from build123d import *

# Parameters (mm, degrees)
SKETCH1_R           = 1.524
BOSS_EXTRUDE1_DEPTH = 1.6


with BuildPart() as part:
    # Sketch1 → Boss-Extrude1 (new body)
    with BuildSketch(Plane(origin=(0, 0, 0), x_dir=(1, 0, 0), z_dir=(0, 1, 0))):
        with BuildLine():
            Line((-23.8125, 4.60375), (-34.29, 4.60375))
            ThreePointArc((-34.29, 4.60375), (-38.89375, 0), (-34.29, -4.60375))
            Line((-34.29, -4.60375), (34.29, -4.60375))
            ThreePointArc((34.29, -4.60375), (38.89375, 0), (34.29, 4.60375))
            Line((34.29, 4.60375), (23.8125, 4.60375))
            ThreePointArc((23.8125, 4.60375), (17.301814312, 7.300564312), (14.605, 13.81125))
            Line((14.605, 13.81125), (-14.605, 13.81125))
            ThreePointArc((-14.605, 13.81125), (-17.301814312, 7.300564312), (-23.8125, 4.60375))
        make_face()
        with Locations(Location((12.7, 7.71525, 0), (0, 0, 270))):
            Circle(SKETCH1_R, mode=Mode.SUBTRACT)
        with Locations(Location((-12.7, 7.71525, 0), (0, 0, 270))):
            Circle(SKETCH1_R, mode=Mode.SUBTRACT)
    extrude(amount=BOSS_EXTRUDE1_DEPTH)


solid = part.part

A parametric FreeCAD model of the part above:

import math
import FreeCAD as App
import Part
import Sketcher

V = App.Vector
Q = App.Units.Quantity

doc = App.newDocument("Part")
body = doc.addObject("PartDesign::Body", "Body")

sketch1 = body.newObject("Sketcher::SketchObject", "Sketch")
sketch1.AttachmentSupport = (doc.getObject("XZ_Plane"), [""])
sketch1.MapMode = "FlatFace"
sketch1.addGeometry([
    Part.LineSegment(V(-23.8, -4.6, 0), V(-34.3, -4.6, 0)),
    Part.ArcOfCircle(Part.Circle(V(-34.3, 0, 0), V(0, 0, 1), 4.6), math.radians(90), math.radians(270)),
    Part.LineSegment(V(-34.3, 4.6, 0), V(34.3, 4.6, 0)),
    Part.ArcOfCircle(Part.Circle(V(34.3, 0, 0), V(0, 0, 1), 4.6), math.radians(-90), math.radians(90)),
    Part.LineSegment(V(34.3, -4.6, 0), V(23.8, -4.6, 0)),
    Part.ArcOfCircle(Part.Circle(V(23.8, -13.8, 0), V(0, 0, 1), 9.2), math.radians(90), math.radians(180)),
    Part.LineSegment(V(14.6, -13.8, 0), V(-14.6, -13.8, 0)),
    Part.ArcOfCircle(Part.Circle(V(-23.8, -13.8, 0), V(0, 0, 1), 9.2), math.radians(0), math.radians(90)),
    Part.Circle(V(-12.7, -7.7, 0), V(0, 0, 1), 1.5),
    Part.Circle(V(12.7, -7.7, 0), V(0, 0, 1), 1.5),
], False)
sketch1.addConstraint([
    Sketcher.Constraint("Tangent", 0, 2, 1, 2),
    Sketcher.Constraint("Tangent", 1, 1, 2, 1),
    Sketcher.Constraint("Tangent", 2, 2, 3, 2),
    Sketcher.Constraint("Tangent", 3, 1, 4, 1),
    Sketcher.Constraint("Tangent", 4, 2, 5, 1),
    Sketcher.Constraint("Coincident", 5, 2, 6, 1),
    Sketcher.Constraint("Coincident", 6, 2, 7, 1),
    Sketcher.Constraint("Tangent", 7, 2, 0, 1),
    Sketcher.Constraint("Horizontal", 0),
    Sketcher.Constraint("Horizontal", 2),
    Sketcher.Constraint("Horizontal", 4),
    Sketcher.Constraint("Horizontal", 6),
    Sketcher.Constraint("Equal", 1, 3),
    Sketcher.Constraint("Equal", 5, 7),
    Sketcher.Constraint("Equal", 8, 9),
    Sketcher.Constraint("Symmetric", 1, 3, 3, 3, -1, 1),
    Sketcher.Constraint("Symmetric", 8, 3, 9, 3, -2),
    Sketcher.Constraint("Horizontal", 7, 3, 5, 2),
    Sketcher.Constraint("Equal", 0, 4),
    Sketcher.Constraint("Diameter", 8, Q("0.12 in")),
    Sketcher.Constraint("DistanceX", 2, 1, 2, 2, Q("2.7 in")),
    Sketcher.Constraint("DistanceX", 8, 3, 9, 3, Q("1 in")),
    Sketcher.Constraint("DistanceX", 6, 2, 6, 1, Q("1.15 in")),
    Sketcher.Constraint("Radius", 5, Q("0.3625 in")),
    Sketcher.Constraint("DistanceY", 7, 3, 8, 3, Q("0.24 in")),
    Sketcher.Constraint("Radius", 1, 4.60375),
])
pad1 = body.newObject("PartDesign::Pad", "Pad")
pad1.Profile = sketch1
pad1.Length = 1.6
pad1.Reversed = True

doc.recompute()
